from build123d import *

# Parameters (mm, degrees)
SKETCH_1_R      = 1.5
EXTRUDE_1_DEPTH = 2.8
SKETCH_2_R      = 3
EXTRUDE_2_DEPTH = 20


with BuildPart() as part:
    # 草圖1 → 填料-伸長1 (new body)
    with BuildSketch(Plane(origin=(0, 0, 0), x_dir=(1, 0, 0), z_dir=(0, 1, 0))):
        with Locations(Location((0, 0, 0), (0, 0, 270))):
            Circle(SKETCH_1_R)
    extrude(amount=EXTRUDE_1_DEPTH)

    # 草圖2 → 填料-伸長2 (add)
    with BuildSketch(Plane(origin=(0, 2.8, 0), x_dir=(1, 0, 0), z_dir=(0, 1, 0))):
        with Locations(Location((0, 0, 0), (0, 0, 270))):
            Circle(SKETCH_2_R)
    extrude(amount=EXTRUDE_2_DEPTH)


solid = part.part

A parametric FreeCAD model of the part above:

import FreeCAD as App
import Part
import Sketcher
Q = App.Units.Quantity

doc = App.newDocument("Part")
body = doc.addObject("PartDesign::Body", "Body")

# Sketch on XZ plane
sketch1 = doc.addObject("Sketcher::SketchObject", "Sketch")
body.addObject(sketch1)
sketch1.AttachmentSupport = (doc.XZ_Plane, [""])
sketch1.MapMode = "FlatFace"
sketch1.addGeometry(Part.Circle(App.Vector(0, 0, 0), App.Vector(0, 0, 1), 1.5), False)
sketch1.addConstraint([
    Sketcher.Constraint("Coincident", 0, 3, -1, 1),
    Sketcher.Constraint("Diameter", 0, Q("3 mm")),
])
pad1 = doc.addObject("PartDesign::Pad", "Pad")
body.addObject(pad1)
pad1.Profile = sketch1
pad1.Length = 2.8
pad1.Reversed = True

# Sketch on XZ plane
sketch2 = doc.addObject("Sketcher::SketchObject", "Sketch001")
body.addObject(sketch2)
sketch2.AttachmentSupport = (doc.XZ_Plane, [""])
sketch2.MapMode = "FlatFace"
sketch2.AttachmentOffset = App.Placement(App.Vector(0, 0, -2.8), App.Rotation())
sketch2.addGeometry(Part.Circle(App.Vector(0, 0, 0), App.Vector(0, 0, 1), 3), False)
sketch2.addConstraint([
    Sketcher.Constraint("Coincident", 0, 3, -1, 1),
    Sketcher.Constraint("Diameter", 0, Q("6 mm")),
])
pad2 = doc.addObject("PartDesign::Pad", "Pad001")
body.addObject(pad2)
pad2.Profile = sketch2
pad2.Length = 20
pad2.Reversed = True

doc.recompute()
